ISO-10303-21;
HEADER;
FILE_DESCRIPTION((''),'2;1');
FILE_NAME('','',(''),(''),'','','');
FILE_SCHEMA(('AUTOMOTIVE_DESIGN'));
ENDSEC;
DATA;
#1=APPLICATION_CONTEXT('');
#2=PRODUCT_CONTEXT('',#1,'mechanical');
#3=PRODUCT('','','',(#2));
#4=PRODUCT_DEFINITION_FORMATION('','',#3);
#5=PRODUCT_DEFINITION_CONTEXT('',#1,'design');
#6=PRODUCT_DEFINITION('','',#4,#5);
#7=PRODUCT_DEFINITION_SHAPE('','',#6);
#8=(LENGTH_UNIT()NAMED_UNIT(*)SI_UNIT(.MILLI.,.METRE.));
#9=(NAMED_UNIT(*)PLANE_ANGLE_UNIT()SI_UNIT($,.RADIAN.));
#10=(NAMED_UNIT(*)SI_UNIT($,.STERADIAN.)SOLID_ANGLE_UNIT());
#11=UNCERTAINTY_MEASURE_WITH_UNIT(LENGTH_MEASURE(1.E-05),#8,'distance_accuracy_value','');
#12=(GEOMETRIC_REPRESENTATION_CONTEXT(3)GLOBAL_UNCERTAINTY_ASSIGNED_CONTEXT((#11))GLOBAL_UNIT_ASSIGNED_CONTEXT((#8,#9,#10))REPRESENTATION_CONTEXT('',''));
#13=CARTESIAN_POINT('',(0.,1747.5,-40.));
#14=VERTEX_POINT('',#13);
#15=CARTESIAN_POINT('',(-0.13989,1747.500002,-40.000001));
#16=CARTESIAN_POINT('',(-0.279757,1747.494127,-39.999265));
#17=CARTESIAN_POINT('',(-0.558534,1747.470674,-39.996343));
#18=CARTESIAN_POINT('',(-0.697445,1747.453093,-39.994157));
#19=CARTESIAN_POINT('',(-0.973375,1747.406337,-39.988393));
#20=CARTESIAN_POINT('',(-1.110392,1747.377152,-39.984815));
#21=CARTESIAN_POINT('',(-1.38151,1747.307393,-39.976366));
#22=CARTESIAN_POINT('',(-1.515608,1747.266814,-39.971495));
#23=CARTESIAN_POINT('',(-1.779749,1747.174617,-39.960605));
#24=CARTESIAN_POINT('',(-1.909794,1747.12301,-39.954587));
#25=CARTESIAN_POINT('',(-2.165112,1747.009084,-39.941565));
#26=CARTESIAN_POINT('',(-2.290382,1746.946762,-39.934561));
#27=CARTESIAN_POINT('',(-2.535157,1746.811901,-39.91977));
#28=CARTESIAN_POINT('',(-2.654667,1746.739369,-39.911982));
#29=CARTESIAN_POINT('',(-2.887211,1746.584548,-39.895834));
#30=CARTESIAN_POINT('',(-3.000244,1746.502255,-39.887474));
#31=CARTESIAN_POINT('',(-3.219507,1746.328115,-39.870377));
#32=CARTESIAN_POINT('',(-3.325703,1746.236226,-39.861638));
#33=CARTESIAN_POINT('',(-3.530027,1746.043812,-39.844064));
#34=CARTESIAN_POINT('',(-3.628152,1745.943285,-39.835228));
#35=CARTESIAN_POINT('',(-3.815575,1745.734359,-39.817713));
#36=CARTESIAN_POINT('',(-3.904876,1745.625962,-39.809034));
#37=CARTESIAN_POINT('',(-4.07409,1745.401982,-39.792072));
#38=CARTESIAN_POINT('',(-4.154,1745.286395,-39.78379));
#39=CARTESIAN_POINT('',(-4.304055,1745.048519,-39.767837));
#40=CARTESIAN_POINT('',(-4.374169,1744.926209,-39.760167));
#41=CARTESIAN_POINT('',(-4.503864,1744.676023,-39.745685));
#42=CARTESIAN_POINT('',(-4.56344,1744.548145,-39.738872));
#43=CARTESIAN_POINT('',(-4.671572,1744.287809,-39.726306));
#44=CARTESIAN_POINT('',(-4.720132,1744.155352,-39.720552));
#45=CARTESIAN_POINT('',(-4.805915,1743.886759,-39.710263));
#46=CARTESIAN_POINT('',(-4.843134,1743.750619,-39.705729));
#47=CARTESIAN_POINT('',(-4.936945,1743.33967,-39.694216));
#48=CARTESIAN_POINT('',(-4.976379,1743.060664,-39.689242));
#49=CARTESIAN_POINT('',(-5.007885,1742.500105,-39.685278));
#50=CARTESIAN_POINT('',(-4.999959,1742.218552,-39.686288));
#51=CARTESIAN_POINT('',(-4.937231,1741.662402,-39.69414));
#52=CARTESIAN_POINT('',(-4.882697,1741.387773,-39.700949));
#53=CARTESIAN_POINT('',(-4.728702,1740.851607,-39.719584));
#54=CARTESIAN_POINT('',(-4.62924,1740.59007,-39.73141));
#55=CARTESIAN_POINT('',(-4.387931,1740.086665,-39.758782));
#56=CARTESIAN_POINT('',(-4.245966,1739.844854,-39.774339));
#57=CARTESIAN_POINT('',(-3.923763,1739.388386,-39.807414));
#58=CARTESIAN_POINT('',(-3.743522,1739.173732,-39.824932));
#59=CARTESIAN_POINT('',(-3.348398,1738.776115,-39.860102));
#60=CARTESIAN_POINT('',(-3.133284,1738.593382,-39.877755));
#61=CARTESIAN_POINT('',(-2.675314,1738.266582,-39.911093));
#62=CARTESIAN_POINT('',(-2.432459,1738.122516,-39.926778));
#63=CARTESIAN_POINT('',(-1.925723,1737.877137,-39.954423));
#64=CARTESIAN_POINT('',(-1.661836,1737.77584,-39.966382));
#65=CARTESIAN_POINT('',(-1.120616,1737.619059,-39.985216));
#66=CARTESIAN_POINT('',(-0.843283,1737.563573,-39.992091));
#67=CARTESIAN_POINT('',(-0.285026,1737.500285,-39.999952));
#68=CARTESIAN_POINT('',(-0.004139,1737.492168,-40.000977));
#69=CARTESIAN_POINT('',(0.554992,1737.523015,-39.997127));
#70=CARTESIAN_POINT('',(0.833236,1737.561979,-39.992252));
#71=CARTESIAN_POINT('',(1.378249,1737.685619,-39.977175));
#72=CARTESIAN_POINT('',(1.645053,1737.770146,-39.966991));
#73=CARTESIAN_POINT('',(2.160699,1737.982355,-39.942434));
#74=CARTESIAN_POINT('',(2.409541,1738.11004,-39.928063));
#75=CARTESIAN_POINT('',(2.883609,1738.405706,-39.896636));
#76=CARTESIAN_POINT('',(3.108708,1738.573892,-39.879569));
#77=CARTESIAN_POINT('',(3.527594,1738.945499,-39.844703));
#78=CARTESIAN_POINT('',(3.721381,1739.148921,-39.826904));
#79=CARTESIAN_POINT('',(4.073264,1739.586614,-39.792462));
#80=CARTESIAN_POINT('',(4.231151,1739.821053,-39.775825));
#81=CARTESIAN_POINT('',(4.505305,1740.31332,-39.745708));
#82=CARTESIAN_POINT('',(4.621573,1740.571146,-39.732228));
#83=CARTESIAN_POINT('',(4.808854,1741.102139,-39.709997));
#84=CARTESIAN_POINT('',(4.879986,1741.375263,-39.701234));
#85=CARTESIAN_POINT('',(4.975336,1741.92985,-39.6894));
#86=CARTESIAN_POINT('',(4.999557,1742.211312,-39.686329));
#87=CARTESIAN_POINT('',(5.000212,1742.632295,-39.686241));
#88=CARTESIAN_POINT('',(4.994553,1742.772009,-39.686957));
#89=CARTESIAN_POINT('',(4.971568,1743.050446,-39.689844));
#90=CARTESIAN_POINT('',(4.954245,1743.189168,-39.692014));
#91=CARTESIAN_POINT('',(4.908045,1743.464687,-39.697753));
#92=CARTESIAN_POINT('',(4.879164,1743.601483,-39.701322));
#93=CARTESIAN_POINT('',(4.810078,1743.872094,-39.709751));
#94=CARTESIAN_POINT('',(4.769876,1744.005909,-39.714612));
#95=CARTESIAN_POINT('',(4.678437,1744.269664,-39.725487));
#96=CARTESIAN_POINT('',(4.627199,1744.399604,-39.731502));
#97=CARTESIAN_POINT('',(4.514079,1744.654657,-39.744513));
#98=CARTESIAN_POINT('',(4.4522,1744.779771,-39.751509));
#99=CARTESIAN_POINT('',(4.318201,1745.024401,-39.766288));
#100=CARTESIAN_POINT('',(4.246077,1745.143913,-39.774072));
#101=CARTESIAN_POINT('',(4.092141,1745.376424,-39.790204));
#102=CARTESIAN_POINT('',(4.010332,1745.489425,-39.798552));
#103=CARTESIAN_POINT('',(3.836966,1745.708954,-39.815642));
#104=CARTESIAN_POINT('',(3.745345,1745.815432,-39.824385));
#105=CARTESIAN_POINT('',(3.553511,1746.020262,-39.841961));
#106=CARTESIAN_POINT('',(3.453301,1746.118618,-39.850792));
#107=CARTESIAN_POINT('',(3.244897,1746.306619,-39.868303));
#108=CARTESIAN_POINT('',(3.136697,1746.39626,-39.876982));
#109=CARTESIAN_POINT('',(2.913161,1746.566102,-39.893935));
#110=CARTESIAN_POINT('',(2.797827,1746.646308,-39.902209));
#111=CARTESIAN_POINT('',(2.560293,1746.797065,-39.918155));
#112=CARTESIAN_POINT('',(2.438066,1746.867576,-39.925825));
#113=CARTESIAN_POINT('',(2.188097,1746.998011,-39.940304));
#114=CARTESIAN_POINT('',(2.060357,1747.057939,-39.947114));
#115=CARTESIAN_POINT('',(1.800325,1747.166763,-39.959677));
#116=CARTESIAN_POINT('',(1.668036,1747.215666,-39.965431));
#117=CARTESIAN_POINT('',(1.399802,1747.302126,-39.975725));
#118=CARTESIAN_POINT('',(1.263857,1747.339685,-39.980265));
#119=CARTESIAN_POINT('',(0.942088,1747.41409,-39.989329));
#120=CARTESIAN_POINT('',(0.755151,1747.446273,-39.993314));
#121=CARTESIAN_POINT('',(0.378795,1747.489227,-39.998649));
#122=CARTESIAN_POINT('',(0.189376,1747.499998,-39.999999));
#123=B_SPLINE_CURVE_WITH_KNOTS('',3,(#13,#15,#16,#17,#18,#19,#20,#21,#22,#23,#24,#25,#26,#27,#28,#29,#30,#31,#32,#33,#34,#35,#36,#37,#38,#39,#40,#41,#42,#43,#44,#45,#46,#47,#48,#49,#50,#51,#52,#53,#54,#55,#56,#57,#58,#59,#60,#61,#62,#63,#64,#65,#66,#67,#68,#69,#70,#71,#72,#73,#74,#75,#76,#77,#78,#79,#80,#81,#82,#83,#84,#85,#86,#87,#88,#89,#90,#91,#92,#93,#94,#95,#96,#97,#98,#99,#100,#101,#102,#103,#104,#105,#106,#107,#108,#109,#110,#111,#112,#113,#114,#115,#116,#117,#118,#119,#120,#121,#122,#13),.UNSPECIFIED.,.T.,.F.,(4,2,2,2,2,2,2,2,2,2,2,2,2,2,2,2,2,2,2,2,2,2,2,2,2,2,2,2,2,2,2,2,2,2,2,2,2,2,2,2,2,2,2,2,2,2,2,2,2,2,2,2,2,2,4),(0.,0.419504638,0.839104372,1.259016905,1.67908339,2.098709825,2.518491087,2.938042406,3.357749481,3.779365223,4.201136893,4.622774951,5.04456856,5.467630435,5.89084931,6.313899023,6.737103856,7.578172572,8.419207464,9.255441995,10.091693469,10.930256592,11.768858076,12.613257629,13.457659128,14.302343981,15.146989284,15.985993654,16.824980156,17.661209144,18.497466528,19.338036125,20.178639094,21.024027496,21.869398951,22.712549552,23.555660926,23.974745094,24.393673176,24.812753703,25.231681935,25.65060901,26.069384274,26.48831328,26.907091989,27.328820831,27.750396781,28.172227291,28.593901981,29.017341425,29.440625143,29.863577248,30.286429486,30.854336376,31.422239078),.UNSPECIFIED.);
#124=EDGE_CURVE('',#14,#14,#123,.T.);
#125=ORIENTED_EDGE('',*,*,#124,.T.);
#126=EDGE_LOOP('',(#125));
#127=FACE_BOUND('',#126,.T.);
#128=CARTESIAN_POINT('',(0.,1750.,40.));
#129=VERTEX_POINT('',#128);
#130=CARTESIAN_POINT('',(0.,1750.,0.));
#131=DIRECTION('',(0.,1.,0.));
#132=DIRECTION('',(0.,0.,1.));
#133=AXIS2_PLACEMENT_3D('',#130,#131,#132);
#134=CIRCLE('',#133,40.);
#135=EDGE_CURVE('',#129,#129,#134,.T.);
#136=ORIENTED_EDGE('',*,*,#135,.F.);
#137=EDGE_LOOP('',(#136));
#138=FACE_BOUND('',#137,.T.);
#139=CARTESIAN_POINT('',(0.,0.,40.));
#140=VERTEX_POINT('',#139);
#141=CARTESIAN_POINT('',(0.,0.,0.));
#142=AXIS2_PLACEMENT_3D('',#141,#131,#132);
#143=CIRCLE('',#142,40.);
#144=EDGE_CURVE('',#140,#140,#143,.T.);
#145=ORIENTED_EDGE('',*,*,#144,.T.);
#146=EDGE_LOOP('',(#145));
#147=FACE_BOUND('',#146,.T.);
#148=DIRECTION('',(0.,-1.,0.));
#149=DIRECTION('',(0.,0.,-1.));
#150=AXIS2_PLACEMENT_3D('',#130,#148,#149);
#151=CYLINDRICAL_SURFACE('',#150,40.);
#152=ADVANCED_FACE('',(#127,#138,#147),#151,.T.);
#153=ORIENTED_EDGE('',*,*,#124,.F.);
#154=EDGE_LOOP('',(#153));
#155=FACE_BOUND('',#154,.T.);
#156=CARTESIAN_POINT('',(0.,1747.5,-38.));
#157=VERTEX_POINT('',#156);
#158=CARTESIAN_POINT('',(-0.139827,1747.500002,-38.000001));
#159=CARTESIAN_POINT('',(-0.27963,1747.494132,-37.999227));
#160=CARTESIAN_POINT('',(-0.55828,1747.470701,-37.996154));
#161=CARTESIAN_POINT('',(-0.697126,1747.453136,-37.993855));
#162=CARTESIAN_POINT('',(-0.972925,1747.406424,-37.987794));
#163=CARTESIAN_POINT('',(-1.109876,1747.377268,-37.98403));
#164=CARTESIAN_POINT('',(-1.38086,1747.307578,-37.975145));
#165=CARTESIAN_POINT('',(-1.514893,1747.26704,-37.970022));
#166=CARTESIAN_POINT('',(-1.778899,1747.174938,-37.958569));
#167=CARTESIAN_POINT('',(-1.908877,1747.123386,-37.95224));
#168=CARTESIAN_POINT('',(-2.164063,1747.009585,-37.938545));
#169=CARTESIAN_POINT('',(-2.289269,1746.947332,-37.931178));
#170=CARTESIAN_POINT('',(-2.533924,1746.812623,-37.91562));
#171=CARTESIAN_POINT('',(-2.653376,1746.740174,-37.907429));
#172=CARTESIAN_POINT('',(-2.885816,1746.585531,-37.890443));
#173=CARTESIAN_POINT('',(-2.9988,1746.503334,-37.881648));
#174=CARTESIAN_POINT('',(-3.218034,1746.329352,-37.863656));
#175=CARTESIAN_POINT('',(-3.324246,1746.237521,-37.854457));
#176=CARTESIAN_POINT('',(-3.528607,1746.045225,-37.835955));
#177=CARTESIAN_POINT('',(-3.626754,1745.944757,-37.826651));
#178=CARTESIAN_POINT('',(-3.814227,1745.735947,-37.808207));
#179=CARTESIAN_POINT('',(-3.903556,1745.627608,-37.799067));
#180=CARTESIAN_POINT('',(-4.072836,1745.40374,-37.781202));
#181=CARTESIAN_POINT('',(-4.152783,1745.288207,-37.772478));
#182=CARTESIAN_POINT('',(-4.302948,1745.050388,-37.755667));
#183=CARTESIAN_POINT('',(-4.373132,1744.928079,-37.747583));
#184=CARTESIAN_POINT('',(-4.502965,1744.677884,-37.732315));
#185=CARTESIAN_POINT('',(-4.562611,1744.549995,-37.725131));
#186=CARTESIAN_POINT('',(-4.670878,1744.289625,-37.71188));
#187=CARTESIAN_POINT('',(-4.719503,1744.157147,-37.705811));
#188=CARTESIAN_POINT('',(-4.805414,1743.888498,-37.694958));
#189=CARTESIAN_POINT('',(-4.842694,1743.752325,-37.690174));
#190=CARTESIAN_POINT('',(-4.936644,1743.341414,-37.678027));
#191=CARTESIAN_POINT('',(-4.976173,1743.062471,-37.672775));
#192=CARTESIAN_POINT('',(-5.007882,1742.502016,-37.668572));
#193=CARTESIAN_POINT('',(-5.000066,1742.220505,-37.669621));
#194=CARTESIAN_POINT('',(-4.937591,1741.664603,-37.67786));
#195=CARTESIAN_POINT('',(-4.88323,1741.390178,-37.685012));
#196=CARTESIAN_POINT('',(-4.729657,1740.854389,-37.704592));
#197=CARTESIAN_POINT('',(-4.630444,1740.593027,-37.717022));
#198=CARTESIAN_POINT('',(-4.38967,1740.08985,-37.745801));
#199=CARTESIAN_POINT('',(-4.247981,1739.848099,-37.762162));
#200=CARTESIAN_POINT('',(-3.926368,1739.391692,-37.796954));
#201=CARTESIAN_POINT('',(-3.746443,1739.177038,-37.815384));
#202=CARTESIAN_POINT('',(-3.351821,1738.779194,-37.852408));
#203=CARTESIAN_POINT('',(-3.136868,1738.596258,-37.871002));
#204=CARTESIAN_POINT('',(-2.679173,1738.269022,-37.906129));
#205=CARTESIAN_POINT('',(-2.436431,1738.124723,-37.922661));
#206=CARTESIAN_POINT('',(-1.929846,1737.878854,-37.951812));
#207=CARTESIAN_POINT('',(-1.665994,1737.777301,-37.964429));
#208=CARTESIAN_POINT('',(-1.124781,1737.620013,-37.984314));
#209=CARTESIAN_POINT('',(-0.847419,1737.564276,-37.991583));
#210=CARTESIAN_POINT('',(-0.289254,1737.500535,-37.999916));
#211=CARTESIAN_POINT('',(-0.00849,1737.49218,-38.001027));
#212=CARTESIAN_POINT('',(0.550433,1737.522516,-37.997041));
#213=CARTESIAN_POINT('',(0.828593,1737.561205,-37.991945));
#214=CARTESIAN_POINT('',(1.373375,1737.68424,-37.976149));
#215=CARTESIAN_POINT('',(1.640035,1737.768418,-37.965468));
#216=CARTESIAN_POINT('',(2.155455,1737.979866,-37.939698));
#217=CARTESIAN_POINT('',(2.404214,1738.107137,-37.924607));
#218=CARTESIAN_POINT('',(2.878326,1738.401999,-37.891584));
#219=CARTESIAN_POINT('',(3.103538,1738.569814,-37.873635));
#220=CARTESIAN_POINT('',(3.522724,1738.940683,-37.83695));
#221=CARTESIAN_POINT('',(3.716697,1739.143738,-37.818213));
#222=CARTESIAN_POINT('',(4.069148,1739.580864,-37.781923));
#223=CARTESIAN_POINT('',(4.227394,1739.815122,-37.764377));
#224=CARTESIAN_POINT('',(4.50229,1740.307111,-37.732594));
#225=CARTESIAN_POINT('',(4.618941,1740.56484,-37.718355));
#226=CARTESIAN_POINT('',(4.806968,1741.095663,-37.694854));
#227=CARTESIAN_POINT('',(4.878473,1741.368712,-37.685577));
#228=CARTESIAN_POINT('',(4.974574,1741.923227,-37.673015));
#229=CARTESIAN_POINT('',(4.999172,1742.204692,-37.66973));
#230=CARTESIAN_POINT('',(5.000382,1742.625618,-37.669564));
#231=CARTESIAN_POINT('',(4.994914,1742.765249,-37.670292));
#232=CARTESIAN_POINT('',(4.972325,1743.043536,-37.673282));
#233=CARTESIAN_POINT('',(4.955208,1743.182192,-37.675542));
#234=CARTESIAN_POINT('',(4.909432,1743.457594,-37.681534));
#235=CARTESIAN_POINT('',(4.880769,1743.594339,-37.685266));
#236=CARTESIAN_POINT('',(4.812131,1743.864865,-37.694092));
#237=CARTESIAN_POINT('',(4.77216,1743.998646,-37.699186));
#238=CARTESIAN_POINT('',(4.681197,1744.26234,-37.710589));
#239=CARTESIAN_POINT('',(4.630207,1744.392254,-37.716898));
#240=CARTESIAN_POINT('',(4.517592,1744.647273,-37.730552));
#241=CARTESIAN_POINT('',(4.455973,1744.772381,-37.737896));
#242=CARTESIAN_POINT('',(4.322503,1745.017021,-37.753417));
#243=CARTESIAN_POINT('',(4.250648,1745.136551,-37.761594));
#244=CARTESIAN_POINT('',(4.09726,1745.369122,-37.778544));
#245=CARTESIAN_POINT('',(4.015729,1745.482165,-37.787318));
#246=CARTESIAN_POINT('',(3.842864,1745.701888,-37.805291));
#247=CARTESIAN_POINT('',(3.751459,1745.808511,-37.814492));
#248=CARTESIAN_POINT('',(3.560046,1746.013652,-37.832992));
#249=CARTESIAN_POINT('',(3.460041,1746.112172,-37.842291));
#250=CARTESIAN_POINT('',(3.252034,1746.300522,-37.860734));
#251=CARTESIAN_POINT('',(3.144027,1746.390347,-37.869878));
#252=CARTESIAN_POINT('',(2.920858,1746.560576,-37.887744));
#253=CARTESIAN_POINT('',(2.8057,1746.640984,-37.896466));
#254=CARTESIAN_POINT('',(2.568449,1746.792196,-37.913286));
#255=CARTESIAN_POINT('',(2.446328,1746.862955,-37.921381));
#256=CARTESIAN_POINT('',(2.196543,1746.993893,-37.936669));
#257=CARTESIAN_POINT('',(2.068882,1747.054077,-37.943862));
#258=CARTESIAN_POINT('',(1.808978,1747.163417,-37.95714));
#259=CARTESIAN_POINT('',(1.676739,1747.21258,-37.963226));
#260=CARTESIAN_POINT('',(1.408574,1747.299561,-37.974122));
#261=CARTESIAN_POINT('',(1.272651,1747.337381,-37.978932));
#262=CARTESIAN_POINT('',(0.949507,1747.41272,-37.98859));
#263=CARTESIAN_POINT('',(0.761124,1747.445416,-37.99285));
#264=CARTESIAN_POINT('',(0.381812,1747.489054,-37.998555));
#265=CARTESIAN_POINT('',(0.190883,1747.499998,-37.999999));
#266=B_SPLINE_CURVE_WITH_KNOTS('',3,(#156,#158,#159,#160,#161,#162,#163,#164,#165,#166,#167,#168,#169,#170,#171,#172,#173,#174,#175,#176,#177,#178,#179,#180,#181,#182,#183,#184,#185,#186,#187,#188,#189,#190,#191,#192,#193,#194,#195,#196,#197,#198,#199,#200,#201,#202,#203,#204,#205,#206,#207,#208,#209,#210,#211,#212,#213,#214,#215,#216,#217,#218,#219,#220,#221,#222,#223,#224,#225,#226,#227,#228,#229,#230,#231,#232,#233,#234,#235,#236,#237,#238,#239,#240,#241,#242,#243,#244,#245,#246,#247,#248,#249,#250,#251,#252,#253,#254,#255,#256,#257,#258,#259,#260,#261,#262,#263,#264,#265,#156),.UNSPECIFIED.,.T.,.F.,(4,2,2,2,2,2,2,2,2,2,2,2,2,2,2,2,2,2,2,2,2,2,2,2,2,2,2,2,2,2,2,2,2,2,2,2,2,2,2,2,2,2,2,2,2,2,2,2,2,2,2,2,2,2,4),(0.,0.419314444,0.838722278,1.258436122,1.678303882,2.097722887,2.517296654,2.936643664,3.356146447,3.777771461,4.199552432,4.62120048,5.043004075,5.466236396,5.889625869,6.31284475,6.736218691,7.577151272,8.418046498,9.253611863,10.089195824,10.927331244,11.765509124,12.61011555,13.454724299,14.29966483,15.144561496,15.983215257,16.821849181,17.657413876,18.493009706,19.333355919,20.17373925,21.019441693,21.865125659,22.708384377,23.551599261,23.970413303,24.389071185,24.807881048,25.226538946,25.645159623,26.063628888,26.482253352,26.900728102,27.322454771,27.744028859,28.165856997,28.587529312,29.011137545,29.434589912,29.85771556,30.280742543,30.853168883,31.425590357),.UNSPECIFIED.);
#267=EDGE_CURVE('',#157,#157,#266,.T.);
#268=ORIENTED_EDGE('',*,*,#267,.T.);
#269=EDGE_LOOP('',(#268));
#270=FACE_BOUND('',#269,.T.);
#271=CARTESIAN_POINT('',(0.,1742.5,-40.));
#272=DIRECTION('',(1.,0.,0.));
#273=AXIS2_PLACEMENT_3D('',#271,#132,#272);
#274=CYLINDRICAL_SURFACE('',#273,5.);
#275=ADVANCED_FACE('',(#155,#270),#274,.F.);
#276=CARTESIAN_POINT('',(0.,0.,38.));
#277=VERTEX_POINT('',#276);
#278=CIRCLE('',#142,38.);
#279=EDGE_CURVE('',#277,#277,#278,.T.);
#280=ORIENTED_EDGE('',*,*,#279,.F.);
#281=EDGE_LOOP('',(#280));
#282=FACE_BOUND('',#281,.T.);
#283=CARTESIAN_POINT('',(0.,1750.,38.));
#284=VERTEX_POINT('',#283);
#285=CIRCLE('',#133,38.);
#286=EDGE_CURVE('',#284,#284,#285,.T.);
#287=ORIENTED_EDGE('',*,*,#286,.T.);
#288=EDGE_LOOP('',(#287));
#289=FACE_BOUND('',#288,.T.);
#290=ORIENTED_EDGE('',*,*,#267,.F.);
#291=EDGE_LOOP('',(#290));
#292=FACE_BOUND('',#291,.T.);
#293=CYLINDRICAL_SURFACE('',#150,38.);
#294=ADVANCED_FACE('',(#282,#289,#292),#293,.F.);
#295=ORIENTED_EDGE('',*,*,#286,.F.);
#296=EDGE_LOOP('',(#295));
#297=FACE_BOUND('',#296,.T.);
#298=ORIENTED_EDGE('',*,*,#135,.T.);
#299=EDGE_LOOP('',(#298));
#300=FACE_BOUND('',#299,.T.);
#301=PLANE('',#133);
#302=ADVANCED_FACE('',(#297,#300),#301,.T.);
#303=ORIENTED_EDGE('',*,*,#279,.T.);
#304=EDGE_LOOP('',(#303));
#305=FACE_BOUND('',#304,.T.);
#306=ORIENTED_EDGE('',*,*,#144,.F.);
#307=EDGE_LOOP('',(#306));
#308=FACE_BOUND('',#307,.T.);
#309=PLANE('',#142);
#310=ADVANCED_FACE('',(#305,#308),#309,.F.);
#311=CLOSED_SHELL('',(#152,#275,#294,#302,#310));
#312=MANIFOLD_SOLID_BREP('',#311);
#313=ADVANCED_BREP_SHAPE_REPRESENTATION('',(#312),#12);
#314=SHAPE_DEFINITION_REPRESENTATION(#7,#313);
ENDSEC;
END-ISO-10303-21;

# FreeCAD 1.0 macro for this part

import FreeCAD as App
import Part
import Sketcher

V = App.Vector

doc = App.newDocument("Part")
body = doc.addObject("PartDesign::Body", "Body")

# Sketch on XZ plane
sketch1 = body.newObject("Sketcher::SketchObject", "Sketch")
sketch1.AttachmentSupport = (doc.getObject("XZ_Plane"), [""])
sketch1.MapMode = "FlatFace"
sketch1.addGeometry([
    Part.Circle(V(0, 0, 0), V(0, 0, 1), 40),
    Part.Circle(V(0, 0, 0), V(0, 0, 1), 38),
], False)
sketch1.addConstraint([
    Sketcher.Constraint("Coincident", 0, 3, -1, 1),
    Sketcher.Constraint("Coincident", 1, 3, -1, 1),
    Sketcher.Constraint("Diameter", 0, 80.0),
    Sketcher.Constraint("Diameter", 1, 76.0),
])
pad1 = body.newObject("PartDesign::Pad", "Pad")
pad1.Profile = sketch1
pad1.Length = 1750
pad1.Reversed = True

# Sketch on XY plane
sketch2 = body.newObject("Sketcher::SketchObject", "Sketch001")
sketch2.AttachmentSupport = (doc.getObject("XY_Plane"), [""])
sketch2.MapMode = "FlatFace"
sketch2.addGeometry(Part.Circle(V(0, 1742, 0), V(0, 0, 1), 5), False)
sketch2.addConstraint([
    Sketcher.Constraint("PointOnObject", 0, 3, -2),
    Sketcher.Constraint("Diameter", 0, 10.0),
    Sketcher.Constraint("DistanceY", -1, 1, 0, 3, 1742.5),
])
pocket1 = body.newObject("PartDesign::Pocket", "Pocket")
pocket1.Profile = sketch2
pocket1.Type = "ThroughAll"

doc.recompute()
